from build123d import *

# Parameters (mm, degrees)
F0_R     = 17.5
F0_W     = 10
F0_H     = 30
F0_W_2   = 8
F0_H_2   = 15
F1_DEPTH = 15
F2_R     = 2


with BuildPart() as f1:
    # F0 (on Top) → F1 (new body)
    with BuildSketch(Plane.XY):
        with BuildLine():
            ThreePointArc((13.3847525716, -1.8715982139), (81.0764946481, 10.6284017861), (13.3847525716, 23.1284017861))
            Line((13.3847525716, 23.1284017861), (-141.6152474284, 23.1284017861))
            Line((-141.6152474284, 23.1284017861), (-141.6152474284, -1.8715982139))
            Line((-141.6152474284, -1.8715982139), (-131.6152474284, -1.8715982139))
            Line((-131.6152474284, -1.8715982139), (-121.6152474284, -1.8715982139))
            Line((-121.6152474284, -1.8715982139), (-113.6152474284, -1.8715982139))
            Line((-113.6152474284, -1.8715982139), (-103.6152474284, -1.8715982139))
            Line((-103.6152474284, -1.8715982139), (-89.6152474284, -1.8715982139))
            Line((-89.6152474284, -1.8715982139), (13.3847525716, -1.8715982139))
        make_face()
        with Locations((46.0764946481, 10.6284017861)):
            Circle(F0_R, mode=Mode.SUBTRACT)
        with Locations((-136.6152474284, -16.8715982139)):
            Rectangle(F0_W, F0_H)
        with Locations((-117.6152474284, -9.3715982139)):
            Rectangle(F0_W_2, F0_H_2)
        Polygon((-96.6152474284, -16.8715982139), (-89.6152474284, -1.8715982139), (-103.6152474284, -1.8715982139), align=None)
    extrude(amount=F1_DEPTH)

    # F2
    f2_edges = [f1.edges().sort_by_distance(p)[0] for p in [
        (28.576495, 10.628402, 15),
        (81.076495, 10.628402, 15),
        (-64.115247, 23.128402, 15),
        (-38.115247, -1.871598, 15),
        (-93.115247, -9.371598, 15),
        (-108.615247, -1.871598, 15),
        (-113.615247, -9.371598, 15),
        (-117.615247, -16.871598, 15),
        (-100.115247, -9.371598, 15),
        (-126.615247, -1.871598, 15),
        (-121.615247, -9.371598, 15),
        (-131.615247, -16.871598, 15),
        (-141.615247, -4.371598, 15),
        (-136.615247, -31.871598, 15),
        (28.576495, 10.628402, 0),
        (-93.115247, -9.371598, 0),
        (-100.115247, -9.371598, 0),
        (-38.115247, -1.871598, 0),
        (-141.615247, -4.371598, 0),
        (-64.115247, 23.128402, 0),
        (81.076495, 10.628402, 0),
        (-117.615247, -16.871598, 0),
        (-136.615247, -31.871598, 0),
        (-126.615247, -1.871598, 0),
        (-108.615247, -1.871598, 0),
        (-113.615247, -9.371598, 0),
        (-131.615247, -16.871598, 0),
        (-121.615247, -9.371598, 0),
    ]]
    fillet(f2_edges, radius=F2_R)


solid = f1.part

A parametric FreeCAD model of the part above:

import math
import FreeCAD as App
import Part
import Sketcher

V = App.Vector
Q = App.Units.Quantity


def edges_at(feature, points):
    """Names of the edges that pass closest to the given points."""
    edges = feature.Shape.Edges
    near = lambda p: min(range(len(edges)), key=lambda i: edges[i].distToShape(Part.Vertex(*p))[0])
    return sorted({f"Edge{near(p) + 1}" for p in points})

doc = App.newDocument("Part")
body = doc.addObject("PartDesign::Body", "Body")

sketch1 = doc.addObject("Sketcher::SketchObject", "Sketch")
body.addObject(sketch1)
sketch1.AttachmentSupport = (doc.XY_Plane, [""])
sketch1.MapMode = "FlatFace"
sketch1.addGeometry(Part.ArcOfCircle(Part.Circle(V(46, 11, 0), V(0, 0, 1), 35), math.radians(-159), math.radians(159)), False)
sketch1.addGeometry(Part.LineSegment(V(13, 23, 0), V(-142, 23, 0)), False)
sketch1.addGeometry(Part.LineSegment(V(-142, 23, 0), V(-142, -32, 0)), False)
sketch1.addGeometry(Part.LineSegment(V(-142, -32, 0), V(-132, -32, 0)), False)
sketch1.addGeometry(Part.LineSegment(V(-132, -32, 0), V(-132, -2, 0)), False)
sketch1.addGeometry(Part.LineSegment(V(-132, -2, 0), V(-122, -2, 0)), False)
sketch1.addGeometry(Part.LineSegment(V(-122, -2, 0), V(-122, -17, 0)), False)
sketch1.addGeometry(Part.LineSegment(V(-122, -17, 0), V(-114, -17, 0)), False)
sketch1.addGeometry(Part.LineSegment(V(-114, -17, 0), V(-114, -2, 0)), False)
sketch1.addGeometry(Part.LineSegment(V(-114, -2, 0), V(-104, -2, 0)), False)
sketch1.addGeometry(Part.LineSegment(V(-104, -2, 0), V(-97, -17, 0)), False)
sketch1.addGeometry(Part.LineSegment(V(-97, -17, 0), V(-90, -2, 0)), False)
sketch1.addGeometry(Part.LineSegment(V(-90, -2, 0), V(13, -2, 0)), False)
sketch1.addGeometry(Part.Circle(V(46, 11, 0), V(0, 0, 1), 18), False)
sketch1.addConstraint(Sketcher.Constraint("Coincident", 0, 2, 1, 1))
sketch1.addConstraint(Sketcher.Constraint("Coincident", 1, 2, 2, 1))
sketch1.addConstraint(Sketcher.Constraint("Coincident", 2, 2, 3, 1))
sketch1.addConstraint(Sketcher.Constraint("Coincident", 3, 2, 4, 1))
sketch1.addConstraint(Sketcher.Constraint("Coincident", 4, 2, 5, 1))
sketch1.addConstraint(Sketcher.Constraint("Coincident", 5, 2, 6, 1))
sketch1.addConstraint(Sketcher.Constraint("Coincident", 6, 2, 7, 1))
sketch1.addConstraint(Sketcher.Constraint("Coincident", 7, 2, 8, 1))
sketch1.addConstraint(Sketcher.Constraint("Coincident", 8, 2, 9, 1))
sketch1.addConstraint(Sketcher.Constraint("Coincident", 9, 2, 10, 1))
sketch1.addConstraint(Sketcher.Constraint("Coincident", 10, 2, 11, 1))
sketch1.addConstraint(Sketcher.Constraint("Coincident", 11, 2, 12, 1))
sketch1.addConstraint(Sketcher.Constraint("Coincident", 12, 2, 0, 1))
sketch1.addConstraint(Sketcher.Constraint("Horizontal", 1))
sketch1.addConstraint(Sketcher.Constraint("Vertical", 2))
sketch1.addConstraint(Sketcher.Constraint("Horizontal", 3))
sketch1.addConstraint(Sketcher.Constraint("Vertical", 4))
sketch1.addConstraint(Sketcher.Constraint("Horizontal", 5))
sketch1.addConstraint(Sketcher.Constraint("Vertical", 6))
sketch1.addConstraint(Sketcher.Constraint("Horizontal", 7))
sketch1.addConstraint(Sketcher.Constraint("Vertical", 8))
sketch1.addConstraint(Sketcher.Constraint("Horizontal", 9))
sketch1.addConstraint(Sketcher.Constraint("Horizontal", 12))
sketch1.addConstraint(Sketcher.Constraint("Coincident", 13, 3, 0, 3))
sketch1.addConstraint(Sketcher.Constraint("Horizontal", 5, 2, 8, 2))
sketch1.addConstraint(Sketcher.Constraint("Horizontal", 7, 2, 10, 2))
sketch1.addConstraint(Sketcher.Constraint("Horizontal", 9, 2, 11, 2))
sketch1.addConstraint(Sketcher.Constraint("Vertical", 0, 2, 12, 2))
sketch1.addConstraint(Sketcher.Constraint("Equal", 3, 5))
sketch1.addConstraint(Sketcher.Constraint("Equal", 5, 9))
sketch1.addConstraint(Sketcher.Constraint("Equal", 10, 11))
sketch1.addConstraint(Sketcher.Constraint("Diameter", 13, Q("35 mm")))
sketch1.addConstraint(Sketcher.Constraint("Radius", 0, Q("35 mm")))
sketch1.addConstraint(Sketcher.Constraint("DistanceX", 1, 2, 1, 1, Q("155 mm")))
sketch1.addConstraint(Sketcher.Constraint("DistanceX", 3, 1, 3, 2, Q("10 mm")))
sketch1.addConstraint(Sketcher.Constraint("DistanceX", 7, 1, 7, 2, Q("8 mm")))
sketch1.addConstraint(Sketcher.Constraint("DistanceX", 12, 1, 12, 2, Q("103 mm")))
sketch1.addConstraint(Sketcher.Constraint("DistanceY", 2, 2, 2, 1, Q("55 mm")))
sketch1.addConstraint(Sketcher.Constraint("DistanceY", 4, 1, 4, 2, Q("30 mm")))
sketch1.addConstraint(Sketcher.Constraint("DistanceY", 6, 2, 6, 1, Q("15 mm")))
sketch1.addConstraint(Sketcher.Constraint("DistanceY", -1, 1, 0, 3, Q("10.628402 mm")))
sketch1.addConstraint(Sketcher.Constraint("DistanceX", -1, 1, 0, 3, Q("46.076495 mm")))
pad1 = doc.addObject("PartDesign::Pad", "Pad")
body.addObject(pad1)
pad1.Profile = sketch1
pad1.Length = 15
doc.recompute()

fillet = doc.addObject("PartDesign::Fillet", "Fillet")
body.addObject(fillet)
fillet.Base = (pad1, edges_at(pad1, [
    (28.576, 10.628, 15),
    (81.076, 10.628, 15),
    (-64.115, 23.128, 15),
    (-38.115, -1.872, 15),
    (-93.115, -9.372, 15),
    (-108.615, -1.872, 15),
    (-113.615, -9.372, 15),
    (-117.615, -16.872, 15),
    (-100.115, -9.372, 15),
    (-126.615, -1.872, 15),
    (-121.615, -9.372, 15),
    (-131.615, -16.872, 15),
    (-141.615, -4.372, 15),
    (-136.615, -31.872, 15),
    (28.576, 10.628, 0),
    (-93.115, -9.372, 0),
    (-100.115, -9.372, 0),
    (-38.115, -1.872, 0),
    (-141.615, -4.372, 0),
    (-64.115, 23.128, 0),
    (81.076, 10.628, 0),
    (-117.615, -16.872, 0),
    (-136.615, -31.872, 0),
    (-126.615, -1.872, 0),
    (-108.615, -1.872, 0),
    (-113.615, -9.372, 0),
    (-131.615, -16.872, 0),
    (-121.615, -9.372, 0),
]))
fillet.Radius = 2

doc.recompute()
